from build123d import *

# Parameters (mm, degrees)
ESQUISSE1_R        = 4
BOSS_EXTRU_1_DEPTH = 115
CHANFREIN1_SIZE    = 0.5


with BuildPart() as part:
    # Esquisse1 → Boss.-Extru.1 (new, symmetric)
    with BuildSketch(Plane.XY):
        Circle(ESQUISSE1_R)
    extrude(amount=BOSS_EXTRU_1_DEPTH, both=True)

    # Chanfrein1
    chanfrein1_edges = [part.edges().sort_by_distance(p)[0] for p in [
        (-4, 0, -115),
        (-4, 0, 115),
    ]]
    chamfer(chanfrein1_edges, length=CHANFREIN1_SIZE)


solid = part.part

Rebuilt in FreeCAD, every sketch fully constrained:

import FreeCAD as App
import Part
import Sketcher
from FreeCAD import Vector


def edges_at(feature, points):
    """Names of the edges that pass closest to the given points."""
    edges = feature.Shape.Edges
    near = lambda p: min(range(len(edges)), key=lambda i: edges[i].distToShape(Part.Vertex(*p))[0])
    return sorted({f"Edge{near(p) + 1}" for p in points})

doc = App.newDocument("Part")
body = doc.addObject("PartDesign::Body", "Body")

# Sketch on XY plane
sketch1 = body.newObject("Sketcher::SketchObject", "Sketch")
sketch1.AttachmentSupport = (doc.getObject("XY_Plane"), [""])
sketch1.MapMode = "FlatFace"
sketch1.addGeometry(Part.Circle(Vector(0, 0, 0), Vector(0, 0, 1), 4), False)
sketch1.addConstraint(Sketcher.Constraint("Coincident", 0, 3, -1, 1))
sketch1.addConstraint(Sketcher.Constraint("Diameter", 0, 8.0))
pad1 = body.newObject("PartDesign::Pad", "Pad")
pad1.Profile = sketch1
pad1.Length = 230
pad1.Midplane = True
doc.recompute()

chamfer = body.newObject("PartDesign::Chamfer", "Chamfer")
chamfer.Base = (pad1, edges_at(pad1, [(-4, 0, -115), (-4, 0, 115)]))
chamfer.Size = 0.5

doc.recompute()
